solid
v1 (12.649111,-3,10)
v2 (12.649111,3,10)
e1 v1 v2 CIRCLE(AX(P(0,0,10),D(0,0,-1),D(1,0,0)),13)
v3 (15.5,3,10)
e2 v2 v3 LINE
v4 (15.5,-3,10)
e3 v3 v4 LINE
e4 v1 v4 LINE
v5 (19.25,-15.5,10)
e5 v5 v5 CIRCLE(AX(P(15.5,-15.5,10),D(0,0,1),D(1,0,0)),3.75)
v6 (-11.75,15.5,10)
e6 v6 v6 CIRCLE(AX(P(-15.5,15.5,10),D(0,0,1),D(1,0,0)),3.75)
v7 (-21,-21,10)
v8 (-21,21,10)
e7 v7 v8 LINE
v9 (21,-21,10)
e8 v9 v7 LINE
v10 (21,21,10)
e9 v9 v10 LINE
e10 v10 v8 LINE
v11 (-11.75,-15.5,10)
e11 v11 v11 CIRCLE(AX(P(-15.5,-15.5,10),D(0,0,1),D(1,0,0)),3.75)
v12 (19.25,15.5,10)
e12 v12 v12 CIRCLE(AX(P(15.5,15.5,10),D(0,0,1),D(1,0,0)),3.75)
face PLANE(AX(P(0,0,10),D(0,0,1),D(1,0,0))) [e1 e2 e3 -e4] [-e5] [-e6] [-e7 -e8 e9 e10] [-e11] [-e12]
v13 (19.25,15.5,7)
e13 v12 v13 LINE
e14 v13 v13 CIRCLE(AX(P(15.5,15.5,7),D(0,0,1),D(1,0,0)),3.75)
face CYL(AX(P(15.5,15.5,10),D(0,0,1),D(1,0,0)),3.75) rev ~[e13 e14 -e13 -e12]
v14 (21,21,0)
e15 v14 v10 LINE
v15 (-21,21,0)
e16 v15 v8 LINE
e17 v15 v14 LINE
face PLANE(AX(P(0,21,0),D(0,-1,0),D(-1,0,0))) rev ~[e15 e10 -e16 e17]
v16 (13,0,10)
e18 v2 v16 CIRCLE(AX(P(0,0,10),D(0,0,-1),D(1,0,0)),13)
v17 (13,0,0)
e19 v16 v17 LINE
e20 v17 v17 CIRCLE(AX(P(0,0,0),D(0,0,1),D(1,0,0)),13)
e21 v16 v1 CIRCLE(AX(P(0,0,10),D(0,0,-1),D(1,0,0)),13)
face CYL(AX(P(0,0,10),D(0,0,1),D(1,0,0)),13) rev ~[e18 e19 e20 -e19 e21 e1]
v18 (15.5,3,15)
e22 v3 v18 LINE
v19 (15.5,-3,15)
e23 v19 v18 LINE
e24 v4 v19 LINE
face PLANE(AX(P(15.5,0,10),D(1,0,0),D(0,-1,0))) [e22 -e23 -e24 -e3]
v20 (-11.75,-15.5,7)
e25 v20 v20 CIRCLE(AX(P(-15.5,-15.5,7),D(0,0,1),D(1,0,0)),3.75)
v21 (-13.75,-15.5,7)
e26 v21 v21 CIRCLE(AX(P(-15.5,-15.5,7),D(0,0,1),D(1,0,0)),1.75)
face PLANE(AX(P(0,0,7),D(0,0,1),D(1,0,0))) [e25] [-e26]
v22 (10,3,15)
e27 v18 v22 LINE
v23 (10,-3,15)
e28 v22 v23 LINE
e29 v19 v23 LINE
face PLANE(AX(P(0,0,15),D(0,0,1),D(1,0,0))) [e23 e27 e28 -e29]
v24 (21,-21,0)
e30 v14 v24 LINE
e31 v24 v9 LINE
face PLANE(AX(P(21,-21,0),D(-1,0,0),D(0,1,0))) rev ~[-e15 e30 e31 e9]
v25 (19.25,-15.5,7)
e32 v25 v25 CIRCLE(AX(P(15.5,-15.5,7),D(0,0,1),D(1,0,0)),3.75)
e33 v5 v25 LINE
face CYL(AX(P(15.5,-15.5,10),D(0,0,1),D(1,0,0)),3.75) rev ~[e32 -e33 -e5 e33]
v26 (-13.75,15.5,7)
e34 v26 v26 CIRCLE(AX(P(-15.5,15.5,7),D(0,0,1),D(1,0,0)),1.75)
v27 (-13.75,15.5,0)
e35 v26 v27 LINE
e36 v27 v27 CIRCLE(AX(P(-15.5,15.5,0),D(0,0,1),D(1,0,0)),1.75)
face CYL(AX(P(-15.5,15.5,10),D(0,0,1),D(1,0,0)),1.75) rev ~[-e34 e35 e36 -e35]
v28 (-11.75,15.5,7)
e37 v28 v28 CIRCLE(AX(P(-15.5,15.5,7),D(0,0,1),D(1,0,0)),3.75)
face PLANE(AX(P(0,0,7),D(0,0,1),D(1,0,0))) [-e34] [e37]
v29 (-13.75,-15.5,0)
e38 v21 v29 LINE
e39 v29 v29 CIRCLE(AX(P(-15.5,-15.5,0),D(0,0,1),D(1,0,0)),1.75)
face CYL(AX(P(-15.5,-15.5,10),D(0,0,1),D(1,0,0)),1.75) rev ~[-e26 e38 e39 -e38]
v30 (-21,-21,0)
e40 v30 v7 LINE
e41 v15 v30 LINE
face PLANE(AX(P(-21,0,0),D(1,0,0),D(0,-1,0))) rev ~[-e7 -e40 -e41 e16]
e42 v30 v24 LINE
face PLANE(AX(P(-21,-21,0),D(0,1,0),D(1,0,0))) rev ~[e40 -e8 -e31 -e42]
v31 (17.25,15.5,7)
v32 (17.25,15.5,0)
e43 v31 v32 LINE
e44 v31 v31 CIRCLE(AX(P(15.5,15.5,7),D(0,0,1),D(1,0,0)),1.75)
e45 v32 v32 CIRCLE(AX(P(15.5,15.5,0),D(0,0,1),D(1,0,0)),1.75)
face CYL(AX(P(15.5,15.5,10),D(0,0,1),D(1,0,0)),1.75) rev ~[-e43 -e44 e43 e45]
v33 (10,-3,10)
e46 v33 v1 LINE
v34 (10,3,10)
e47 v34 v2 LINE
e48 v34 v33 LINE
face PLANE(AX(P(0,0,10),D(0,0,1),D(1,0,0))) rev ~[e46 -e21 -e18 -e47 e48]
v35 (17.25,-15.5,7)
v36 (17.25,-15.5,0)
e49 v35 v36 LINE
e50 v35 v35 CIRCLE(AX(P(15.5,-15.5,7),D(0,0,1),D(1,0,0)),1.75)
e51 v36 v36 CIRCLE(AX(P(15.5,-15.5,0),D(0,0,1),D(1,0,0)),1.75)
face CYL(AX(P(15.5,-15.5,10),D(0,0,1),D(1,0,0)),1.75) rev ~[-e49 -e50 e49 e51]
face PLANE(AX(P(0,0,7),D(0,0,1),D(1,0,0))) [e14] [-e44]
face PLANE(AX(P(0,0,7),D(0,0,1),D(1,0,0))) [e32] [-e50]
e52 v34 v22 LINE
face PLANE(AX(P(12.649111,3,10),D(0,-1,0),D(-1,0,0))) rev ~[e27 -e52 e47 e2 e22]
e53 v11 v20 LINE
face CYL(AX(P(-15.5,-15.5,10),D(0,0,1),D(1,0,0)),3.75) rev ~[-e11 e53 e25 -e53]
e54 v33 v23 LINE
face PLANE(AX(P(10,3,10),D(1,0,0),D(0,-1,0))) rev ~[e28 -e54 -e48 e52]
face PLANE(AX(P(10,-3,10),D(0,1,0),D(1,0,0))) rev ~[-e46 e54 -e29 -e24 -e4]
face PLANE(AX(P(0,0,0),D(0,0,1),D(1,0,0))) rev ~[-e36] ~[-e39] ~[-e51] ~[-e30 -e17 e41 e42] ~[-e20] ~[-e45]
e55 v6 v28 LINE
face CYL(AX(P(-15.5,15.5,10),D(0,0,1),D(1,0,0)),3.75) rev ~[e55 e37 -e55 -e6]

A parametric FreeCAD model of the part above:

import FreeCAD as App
import Part
import Sketcher
Q = App.Units.Quantity

doc = App.newDocument("Part")
params = doc.addObject("Spreadsheet::Sheet", "Params")
for row, (alias, value) in enumerate([
    ("sketch1_width", "42 mm"),
    ("pad1_length", "10 mm"),
    ("sketch2_diameter", "26 mm"),
    ("sketch2_diameter2", "3.5 mm"),
    ("sketch3_diameter", "7.5 mm"),
    ("sketch3_diameter2", "3.5 mm"),
    ("pocket2_length", "3 mm"),
    ("sketch4_height", "6 mm"),
    ("sketch4_width", "5.5 mm"),
    ("pad2_length", "5 mm"),
], start=1):
    params.set(f"A{row}", alias)
    params.set(f"B{row}", "=" + value)
    params.setAlias(f"B{row}", alias)

body = doc.addObject("PartDesign::Body", "Body")

# Sketch on XY plane
sketch1 = body.newObject("Sketcher::SketchObject", "Sketch")
sketch1.AttachmentSupport = (doc.getObject("XY_Plane"), [""])
sketch1.MapMode = "FlatFace"
sketch1.addGeometry([
    Part.LineSegment(App.Vector(-21, -21, 0), App.Vector(21, -21, 0)),
    Part.LineSegment(App.Vector(21, -21, 0), App.Vector(21, 21, 0)),
    Part.LineSegment(App.Vector(21, 21, 0), App.Vector(-21, 21, 0)),
    Part.LineSegment(App.Vector(-21, 21, 0), App.Vector(-21, -21, 0)),
], False)
sketch1.addConstraint([
    Sketcher.Constraint("Coincident", 0, 2, 1, 1),
    Sketcher.Constraint("Coincident", 1, 2, 2, 1),
    Sketcher.Constraint("Coincident", 2, 2, 3, 1),
    Sketcher.Constraint("Coincident", 3, 2, 0, 1),
    Sketcher.Constraint("Horizontal", 0),
    Sketcher.Constraint("Vertical", 1),
    Sketcher.Constraint("Horizontal", 2),
    Sketcher.Constraint("Vertical", 3),
    Sketcher.Constraint("Symmetric", 0, 2, 2, 2, -1, 1),
    Sketcher.Constraint("Equal", 2, 1),
    Sketcher.Constraint("DistanceX", 0, 1, 0, 2, Q("42 mm")),
])
sketch1.setExpression("Constraints[10]", "Params.sketch1_width")
pad1 = body.newObject("PartDesign::Pad", "Pad")
pad1.Profile = sketch1
pad1.setExpression("Length", "Params.pad1_length")

# Sketch on XY plane
sketch2 = body.newObject("Sketcher::SketchObject", "Sketch001")
sketch2.AttachmentSupport = (doc.getObject("XY_Plane"), [""])
sketch2.MapMode = "FlatFace"
sketch2.AttachmentOffset = App.Placement(App.Vector(0, 0, 10), App.Rotation())
sketch2.addGeometry([
    Part.Circle(App.Vector(0, 0, 0), App.Vector(0, 0, 1), 13),  # 0
    Part.Circle(App.Vector(-15.5, 15.5, 0), App.Vector(0, 0, 1), 1.75),  # 1
    Part.Circle(App.Vector(15.5, 15.5, 0), App.Vector(0, 0, 1), 1.75),  # 2
    Part.Circle(App.Vector(15.5, -15.5, 0), App.Vector(0, 0, 1), 1.75),  # 3
    Part.Circle(App.Vector(-15.5, -15.5, 0), App.Vector(0, 0, 1), 1.75),  # 4
], False)
sketch2.addConstraint([
    Sketcher.Constraint("Coincident", 0, 3, -1, 1),
    Sketcher.Constraint("Equal", 1, 2),
    Sketcher.Constraint("Equal", 2, 3),
    Sketcher.Constraint("Equal", 3, 4),
    Sketcher.Constraint("Symmetric", 1, 3, 3, 3, -1, 1),
    Sketcher.Constraint("Symmetric", 2, 3, 4, 3, -1, 1),
    Sketcher.Constraint("Symmetric", 1, 3, 2, 3, -2),
    Sketcher.Constraint("Diameter", 0, Q("26 mm")),
    Sketcher.Constraint("Diameter", 1, Q("3.5 mm")),
    Sketcher.Constraint("DistanceX", 1, 3, 2, 3, Q("31 mm")),
    Sketcher.Constraint("DistanceY", 3, 3, 2, 3, Q("31 mm")),
])
sketch2.setExpression("Constraints[7]", "Params.sketch2_diameter")
sketch2.setExpression("Constraints[8]", "Params.sketch2_diameter2")
pocket1 = body.newObject("PartDesign::Pocket", "Pocket")
pocket1.Profile = sketch2
pocket1.Type = "ThroughAll"

# Sketch on XY plane
sketch3 = body.newObject("Sketcher::SketchObject", "Sketch002")
sketch3.AttachmentSupport = (doc.getObject("XY_Plane"), [""])
sketch3.MapMode = "FlatFace"
sketch3.AttachmentOffset = App.Placement(App.Vector(0, 0, 10), App.Rotation())
sketch3.addGeometry([
    Part.Circle(App.Vector(15.5, -15.5, 0), App.Vector(0, 0, 1), 3.75),  # 0
    Part.Circle(App.Vector(15.5, -15.5, 0), App.Vector(0, 0, 1), 1.75),  # 1
    Part.Circle(App.Vector(-15.5, -15.5, 0), App.Vector(0, 0, 1), 3.75),  # 2
    Part.Circle(App.Vector(-15.5, -15.5, 0), App.Vector(0, 0, 1), 1.75),  # 3
    Part.Circle(App.Vector(-15.5, 15.5, 0), App.Vector(0, 0, 1), 3.75),  # 4
    Part.Circle(App.Vector(-15.5, 15.5, 0), App.Vector(0, 0, 1), 1.75),  # 5
    Part.Circle(App.Vector(15.5, 15.5, 0), App.Vector(0, 0, 1), 3.75),  # 6
    Part.Circle(App.Vector(15.5, 15.5, 0), App.Vector(0, 0, 1), 1.75),  # 7
], False)
sketch3.addConstraint([
    Sketcher.Constraint("Coincident", 1, 3, 0, 3),
    Sketcher.Constraint("Coincident", 3, 3, 2, 3),
    Sketcher.Constraint("Coincident", 5, 3, 4, 3),
    Sketcher.Constraint("Coincident", 7, 3, 6, 3),
    Sketcher.Constraint("Equal", 0, 2),
    Sketcher.Constraint("Equal", 1, 3),
    Sketcher.Constraint("Equal", 2, 4),
    Sketcher.Constraint("Equal", 3, 5),
    Sketcher.Constraint("Equal", 4, 6),
    Sketcher.Constraint("Equal", 5, 7),
    Sketcher.Constraint("Symmetric", 0, 3, 4, 3, -1, 1),
    Sketcher.Constraint("Symmetric", 2, 3, 6, 3, -1, 1),
    Sketcher.Constraint("Symmetric", 0, 3, 2, 3, -2),
    Sketcher.Constraint("Diameter", 0, Q("7.5 mm")),
    Sketcher.Constraint("Diameter", 1, Q("3.5 mm")),
    Sketcher.Constraint("DistanceX", 2, 3, 0, 3, Q("31 mm")),
    Sketcher.Constraint("DistanceY", 2, 3, 4, 3, Q("31 mm")),
])
sketch3.setExpression("Constraints[13]", "Params.sketch3_diameter")
sketch3.setExpression("Constraints[14]", "Params.sketch3_diameter2")
pocket2 = body.newObject("PartDesign::Pocket", "Pocket001")
pocket2.Profile = sketch3
pocket2.setExpression("Length", "Params.pocket2_length")

# Sketch on XY plane
sketch4 = body.newObject("Sketcher::SketchObject", "Sketch003")
sketch4.AttachmentSupport = (doc.getObject("XY_Plane"), [""])
sketch4.MapMode = "FlatFace"
sketch4.AttachmentOffset = App.Placement(App.Vector(0, 0, 10), App.Rotation())
sketch4.addGeometry([
    Part.LineSegment(App.Vector(10, -3, 0), App.Vector(15.5, -3, 0)),
    Part.LineSegment(App.Vector(15.5, -3, 0), App.Vector(15.5, 3, 0)),
    Part.LineSegment(App.Vector(15.5, 3, 0), App.Vector(10, 3, 0)),
    Part.LineSegment(App.Vector(10, 3, 0), App.Vector(10, -3, 0)),
], False)
sketch4.addConstraint([
    Sketcher.Constraint("Coincident", 0, 2, 1, 1),
    Sketcher.Constraint("Coincident", 1, 2, 2, 1),
    Sketcher.Constraint("Coincident", 2, 2, 3, 1),
    Sketcher.Constraint("Coincident", 3, 2, 0, 1),
    Sketcher.Constraint("Horizontal", 0),
    Sketcher.Constraint("Vertical", 1),
    Sketcher.Constraint("Horizontal", 2),
    Sketcher.Constraint("Vertical", 3),
    Sketcher.Constraint("DistanceY", 1, 1, 1, 2, Q("6 mm")),
    Sketcher.Constraint("DistanceX", 0, 1, 0, 2, Q("5.5 mm")),
    Sketcher.Constraint("DistanceY", 0, 2, -1, 1, Q("3 mm")),
    Sketcher.Constraint("DistanceX", -1, 1, 2, 2, Q("10 mm")),
])
sketch4.setExpression("Constraints[8]", "Params.sketch4_height")
sketch4.setExpression("Constraints[9]", "Params.sketch4_width")
pad2 = body.newObject("PartDesign::Pad", "Pad001")
pad2.Profile = sketch4
pad2.setExpression("Length", "Params.pad2_length")

doc.recompute()
